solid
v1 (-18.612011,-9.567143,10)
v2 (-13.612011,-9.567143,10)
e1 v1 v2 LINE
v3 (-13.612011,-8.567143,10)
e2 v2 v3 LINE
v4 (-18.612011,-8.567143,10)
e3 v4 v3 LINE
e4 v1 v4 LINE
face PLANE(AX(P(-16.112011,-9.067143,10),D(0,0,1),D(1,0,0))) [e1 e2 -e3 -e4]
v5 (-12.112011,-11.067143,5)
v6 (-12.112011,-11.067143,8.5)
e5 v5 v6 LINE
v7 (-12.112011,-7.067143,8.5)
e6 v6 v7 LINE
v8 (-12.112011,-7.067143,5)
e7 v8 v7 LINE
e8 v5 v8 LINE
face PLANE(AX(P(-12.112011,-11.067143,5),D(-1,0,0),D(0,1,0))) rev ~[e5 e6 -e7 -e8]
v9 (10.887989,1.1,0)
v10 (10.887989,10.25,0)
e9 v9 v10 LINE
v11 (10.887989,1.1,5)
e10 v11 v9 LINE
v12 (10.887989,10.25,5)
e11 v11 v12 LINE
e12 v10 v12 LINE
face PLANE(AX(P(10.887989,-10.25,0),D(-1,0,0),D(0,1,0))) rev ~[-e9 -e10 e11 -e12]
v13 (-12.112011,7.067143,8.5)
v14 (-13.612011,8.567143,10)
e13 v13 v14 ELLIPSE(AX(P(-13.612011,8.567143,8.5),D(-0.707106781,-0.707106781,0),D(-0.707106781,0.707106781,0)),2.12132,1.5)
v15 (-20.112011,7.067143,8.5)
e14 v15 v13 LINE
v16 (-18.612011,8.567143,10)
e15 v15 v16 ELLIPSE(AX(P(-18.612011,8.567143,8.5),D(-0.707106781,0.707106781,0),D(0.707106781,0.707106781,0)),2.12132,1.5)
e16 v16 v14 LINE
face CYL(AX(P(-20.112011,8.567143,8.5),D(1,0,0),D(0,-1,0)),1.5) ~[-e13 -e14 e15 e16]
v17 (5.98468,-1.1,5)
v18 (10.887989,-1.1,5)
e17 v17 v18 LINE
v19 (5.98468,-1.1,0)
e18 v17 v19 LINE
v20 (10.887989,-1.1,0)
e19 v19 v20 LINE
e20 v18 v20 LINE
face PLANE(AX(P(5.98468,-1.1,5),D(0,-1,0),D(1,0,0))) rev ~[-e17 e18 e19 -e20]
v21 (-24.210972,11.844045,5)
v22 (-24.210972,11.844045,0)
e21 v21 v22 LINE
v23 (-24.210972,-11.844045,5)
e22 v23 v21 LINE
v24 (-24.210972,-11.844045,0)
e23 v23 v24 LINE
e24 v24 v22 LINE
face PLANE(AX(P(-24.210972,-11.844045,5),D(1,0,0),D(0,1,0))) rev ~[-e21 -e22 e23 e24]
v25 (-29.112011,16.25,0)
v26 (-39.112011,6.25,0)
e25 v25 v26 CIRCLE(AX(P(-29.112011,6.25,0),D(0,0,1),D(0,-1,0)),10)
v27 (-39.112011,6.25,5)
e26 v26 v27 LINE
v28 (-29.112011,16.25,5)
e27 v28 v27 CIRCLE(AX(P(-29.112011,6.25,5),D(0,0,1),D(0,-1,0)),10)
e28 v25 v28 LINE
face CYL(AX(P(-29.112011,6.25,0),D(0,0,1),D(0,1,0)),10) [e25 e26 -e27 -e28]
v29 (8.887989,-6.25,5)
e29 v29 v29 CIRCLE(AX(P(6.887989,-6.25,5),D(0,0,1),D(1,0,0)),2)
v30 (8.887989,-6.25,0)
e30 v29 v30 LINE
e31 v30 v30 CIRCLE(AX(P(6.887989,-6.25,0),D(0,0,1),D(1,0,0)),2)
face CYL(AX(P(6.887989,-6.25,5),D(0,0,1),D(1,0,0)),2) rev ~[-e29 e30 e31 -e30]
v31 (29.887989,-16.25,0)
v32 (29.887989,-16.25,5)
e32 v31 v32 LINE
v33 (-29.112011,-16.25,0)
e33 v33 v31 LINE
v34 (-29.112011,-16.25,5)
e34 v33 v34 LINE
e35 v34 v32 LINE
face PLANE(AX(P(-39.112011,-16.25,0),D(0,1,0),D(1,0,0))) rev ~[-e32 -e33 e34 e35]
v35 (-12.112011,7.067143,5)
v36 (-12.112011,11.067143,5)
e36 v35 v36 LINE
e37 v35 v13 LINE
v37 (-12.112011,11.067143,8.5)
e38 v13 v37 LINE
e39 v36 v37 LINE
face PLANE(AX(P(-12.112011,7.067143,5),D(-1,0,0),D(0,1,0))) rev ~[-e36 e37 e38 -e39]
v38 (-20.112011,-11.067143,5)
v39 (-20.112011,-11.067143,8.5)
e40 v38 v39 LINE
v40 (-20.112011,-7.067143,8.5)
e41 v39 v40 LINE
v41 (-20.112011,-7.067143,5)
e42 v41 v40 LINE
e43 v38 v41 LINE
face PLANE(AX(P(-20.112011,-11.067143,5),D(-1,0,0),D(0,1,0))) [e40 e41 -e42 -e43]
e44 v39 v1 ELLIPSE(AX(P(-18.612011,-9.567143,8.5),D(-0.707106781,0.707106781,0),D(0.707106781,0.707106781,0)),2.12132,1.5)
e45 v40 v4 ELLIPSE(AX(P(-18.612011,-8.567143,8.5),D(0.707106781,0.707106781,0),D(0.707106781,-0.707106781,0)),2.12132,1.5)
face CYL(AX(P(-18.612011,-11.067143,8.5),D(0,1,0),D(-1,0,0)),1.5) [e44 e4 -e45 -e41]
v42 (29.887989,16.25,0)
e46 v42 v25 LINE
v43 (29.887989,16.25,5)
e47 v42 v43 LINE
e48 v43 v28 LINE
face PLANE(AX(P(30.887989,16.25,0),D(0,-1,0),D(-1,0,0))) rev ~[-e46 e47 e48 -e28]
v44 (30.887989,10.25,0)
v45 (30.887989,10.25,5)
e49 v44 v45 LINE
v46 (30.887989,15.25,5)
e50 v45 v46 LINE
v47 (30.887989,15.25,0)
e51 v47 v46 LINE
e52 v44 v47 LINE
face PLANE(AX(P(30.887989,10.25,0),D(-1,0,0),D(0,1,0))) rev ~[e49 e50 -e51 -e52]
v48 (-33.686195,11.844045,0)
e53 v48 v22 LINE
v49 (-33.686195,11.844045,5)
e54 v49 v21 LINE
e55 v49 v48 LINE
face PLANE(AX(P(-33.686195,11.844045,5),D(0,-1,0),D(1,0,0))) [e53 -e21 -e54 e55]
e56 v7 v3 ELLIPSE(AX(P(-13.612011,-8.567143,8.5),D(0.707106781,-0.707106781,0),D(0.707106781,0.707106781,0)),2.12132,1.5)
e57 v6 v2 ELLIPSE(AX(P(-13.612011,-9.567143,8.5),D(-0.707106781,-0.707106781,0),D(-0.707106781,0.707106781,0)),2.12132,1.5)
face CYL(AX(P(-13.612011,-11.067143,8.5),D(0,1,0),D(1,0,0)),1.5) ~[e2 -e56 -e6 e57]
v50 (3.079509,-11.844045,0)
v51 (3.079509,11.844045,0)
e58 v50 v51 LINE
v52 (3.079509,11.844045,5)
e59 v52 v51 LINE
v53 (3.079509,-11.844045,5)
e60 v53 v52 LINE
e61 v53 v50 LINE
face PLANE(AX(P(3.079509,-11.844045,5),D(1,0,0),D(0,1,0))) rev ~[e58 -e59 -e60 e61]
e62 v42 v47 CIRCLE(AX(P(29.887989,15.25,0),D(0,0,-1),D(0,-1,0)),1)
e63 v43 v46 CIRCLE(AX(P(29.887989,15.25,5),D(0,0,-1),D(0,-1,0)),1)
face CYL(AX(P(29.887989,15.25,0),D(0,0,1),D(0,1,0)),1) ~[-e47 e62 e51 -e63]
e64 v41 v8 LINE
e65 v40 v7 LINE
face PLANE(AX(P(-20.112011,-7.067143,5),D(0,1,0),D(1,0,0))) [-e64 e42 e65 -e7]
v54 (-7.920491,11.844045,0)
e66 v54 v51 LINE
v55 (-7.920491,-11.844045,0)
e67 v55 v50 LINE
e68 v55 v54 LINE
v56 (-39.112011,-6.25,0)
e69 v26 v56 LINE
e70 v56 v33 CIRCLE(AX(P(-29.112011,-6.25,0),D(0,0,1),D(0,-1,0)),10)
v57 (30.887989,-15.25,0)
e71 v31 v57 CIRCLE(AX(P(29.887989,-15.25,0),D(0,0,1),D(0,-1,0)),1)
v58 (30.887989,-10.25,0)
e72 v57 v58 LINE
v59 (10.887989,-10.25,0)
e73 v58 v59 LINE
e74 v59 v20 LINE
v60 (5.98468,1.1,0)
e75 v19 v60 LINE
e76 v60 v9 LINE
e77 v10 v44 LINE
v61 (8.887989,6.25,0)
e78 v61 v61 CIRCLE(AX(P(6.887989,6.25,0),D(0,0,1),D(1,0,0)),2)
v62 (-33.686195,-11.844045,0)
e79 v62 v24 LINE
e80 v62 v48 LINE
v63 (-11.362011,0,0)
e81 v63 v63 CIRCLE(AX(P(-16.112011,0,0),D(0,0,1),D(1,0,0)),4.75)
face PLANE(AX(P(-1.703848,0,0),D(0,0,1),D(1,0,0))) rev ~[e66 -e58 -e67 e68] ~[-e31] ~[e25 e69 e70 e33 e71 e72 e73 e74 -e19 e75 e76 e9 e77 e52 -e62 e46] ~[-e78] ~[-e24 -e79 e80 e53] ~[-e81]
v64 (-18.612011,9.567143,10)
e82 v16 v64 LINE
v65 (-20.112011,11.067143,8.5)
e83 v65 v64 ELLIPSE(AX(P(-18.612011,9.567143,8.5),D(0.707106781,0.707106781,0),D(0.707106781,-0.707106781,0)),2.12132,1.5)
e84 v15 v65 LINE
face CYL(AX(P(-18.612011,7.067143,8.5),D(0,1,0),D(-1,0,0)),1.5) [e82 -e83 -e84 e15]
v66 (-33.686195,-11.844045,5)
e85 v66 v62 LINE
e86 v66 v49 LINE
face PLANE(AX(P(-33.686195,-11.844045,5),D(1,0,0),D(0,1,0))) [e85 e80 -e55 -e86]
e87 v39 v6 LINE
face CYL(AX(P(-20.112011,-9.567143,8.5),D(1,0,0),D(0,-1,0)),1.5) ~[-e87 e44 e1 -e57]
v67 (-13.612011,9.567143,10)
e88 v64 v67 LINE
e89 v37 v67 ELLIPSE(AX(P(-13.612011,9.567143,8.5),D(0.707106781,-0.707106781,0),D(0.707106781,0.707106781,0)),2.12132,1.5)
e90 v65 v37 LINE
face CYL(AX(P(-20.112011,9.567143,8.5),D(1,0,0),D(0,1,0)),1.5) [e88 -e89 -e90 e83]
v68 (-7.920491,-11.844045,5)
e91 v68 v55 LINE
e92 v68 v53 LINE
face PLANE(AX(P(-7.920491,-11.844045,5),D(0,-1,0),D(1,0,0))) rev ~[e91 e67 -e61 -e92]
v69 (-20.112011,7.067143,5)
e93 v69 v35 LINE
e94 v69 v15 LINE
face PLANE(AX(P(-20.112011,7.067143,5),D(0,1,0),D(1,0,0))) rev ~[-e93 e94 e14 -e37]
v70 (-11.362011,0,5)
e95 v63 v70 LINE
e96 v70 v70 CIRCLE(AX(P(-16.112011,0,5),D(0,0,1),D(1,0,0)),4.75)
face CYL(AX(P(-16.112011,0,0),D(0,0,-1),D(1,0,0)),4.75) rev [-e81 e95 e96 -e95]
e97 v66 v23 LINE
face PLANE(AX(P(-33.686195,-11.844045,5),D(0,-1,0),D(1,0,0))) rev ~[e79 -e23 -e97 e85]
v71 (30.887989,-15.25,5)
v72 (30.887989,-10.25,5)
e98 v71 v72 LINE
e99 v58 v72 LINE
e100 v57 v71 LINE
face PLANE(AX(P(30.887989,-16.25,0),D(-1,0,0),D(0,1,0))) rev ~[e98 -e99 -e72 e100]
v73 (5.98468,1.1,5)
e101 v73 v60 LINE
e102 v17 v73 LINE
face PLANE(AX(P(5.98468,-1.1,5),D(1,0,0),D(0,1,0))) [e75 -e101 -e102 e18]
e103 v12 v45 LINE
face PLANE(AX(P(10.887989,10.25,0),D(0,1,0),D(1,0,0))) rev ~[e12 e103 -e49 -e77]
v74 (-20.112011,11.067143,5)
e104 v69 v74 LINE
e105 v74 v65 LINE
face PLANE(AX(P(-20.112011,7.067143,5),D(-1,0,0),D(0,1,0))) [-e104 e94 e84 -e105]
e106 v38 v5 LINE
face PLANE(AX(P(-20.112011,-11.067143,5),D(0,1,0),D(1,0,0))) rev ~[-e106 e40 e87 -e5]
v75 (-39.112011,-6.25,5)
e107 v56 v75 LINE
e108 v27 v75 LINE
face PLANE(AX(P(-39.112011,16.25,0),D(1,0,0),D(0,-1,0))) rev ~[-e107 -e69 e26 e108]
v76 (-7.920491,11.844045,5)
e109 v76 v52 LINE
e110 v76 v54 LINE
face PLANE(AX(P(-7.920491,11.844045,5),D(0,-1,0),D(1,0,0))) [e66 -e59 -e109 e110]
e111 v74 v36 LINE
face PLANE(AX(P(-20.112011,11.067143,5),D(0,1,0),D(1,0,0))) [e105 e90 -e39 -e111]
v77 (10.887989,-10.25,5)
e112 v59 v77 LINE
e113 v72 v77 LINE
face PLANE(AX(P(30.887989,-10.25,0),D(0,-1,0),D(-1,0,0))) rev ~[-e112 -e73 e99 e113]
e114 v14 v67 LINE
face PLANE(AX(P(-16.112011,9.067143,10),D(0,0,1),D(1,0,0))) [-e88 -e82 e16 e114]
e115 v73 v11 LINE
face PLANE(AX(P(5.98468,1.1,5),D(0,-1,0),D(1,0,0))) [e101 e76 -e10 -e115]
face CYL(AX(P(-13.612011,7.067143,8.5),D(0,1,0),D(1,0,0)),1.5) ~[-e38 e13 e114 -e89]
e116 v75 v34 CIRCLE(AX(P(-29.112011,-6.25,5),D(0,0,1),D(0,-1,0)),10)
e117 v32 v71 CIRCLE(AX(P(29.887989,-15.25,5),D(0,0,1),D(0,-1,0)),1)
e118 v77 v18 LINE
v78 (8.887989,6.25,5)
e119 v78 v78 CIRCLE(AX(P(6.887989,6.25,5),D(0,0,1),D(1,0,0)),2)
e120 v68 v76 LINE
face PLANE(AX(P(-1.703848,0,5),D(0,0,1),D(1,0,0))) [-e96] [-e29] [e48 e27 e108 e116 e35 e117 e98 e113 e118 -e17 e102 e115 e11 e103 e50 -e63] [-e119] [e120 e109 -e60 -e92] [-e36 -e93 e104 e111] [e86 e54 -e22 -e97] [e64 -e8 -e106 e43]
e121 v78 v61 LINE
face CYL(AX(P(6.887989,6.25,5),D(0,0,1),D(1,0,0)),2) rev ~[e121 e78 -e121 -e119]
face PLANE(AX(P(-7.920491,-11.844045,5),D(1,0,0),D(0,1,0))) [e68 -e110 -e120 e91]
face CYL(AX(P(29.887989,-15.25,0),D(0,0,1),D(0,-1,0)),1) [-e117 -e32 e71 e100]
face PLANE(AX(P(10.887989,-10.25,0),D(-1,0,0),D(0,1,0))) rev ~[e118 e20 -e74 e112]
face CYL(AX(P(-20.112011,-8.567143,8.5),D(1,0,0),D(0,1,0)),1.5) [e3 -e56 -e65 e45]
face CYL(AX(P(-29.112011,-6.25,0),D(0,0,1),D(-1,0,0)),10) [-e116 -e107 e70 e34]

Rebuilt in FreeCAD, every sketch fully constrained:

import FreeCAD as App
import Part
import Sketcher

V = App.Vector


def edges_at(feature, points):
    """Names of the edges that pass closest to the given points."""
    edges = feature.Shape.Edges
    near = lambda p: min(range(len(edges)), key=lambda i: edges[i].distToShape(Part.Vertex(*p))[0])
    return sorted({f"Edge{near(p) + 1}" for p in points})


def add_polygon(sketch, points):
    """Adds a closed chain of lines whose ends are joined by coincident constraints."""
    first, n = sketch.GeometryCount, len(points)
    for a, b in zip(points, points[1:] + points[:1]):
        sketch.addGeometry(Part.LineSegment(App.Vector(*a, 0), App.Vector(*b, 0)), False)
    for i in range(n):
        sketch.addConstraint(Sketcher.Constraint("Coincident", first + i, 2, first + (i + 1) % n, 1))

doc = App.newDocument("Part")
body = doc.addObject("PartDesign::Body", "Body")

# Sketch on XY plane
sketch1 = doc.addObject("Sketcher::SketchObject", "Sketch")
body.addObject(sketch1)
sketch1.AttachmentSupport = (doc.XY_Plane, [""])
sketch1.MapMode = "FlatFace"
add_polygon(sketch1, [(30.9, 10.2), (30.9, 16.2), (-39.1, 16.2), (-39.1, -16.2), (30.9, -16.2), (30.9, -10.2), (10.9, -10.2), (10.9, 10.2)])  # lines 0-7
sketch1.addGeometry(Part.Circle(V(-16.1, 0, 0), V(0, 0, 1), 4.8), False)  # 8
sketch1.addConstraint([
    Sketcher.Constraint("Vertical", 0),
    Sketcher.Constraint("Horizontal", 1),
    Sketcher.Constraint("Vertical", 2),
    Sketcher.Constraint("Horizontal", 3),
    Sketcher.Constraint("Vertical", 4),
    Sketcher.Constraint("Horizontal", 5),
    Sketcher.Constraint("Vertical", 6),
    Sketcher.Constraint("Horizontal", 7),
    Sketcher.Constraint("Symmetric", 0, 2, 3, 2, -1),
    Sketcher.Constraint("PointOnObject", 8, 3, -1),
    Sketcher.Constraint("Equal", 0, 4),
    Sketcher.Constraint("Diameter", 8, 9.5),
    Sketcher.Constraint("DistanceX", 1, 2, 1, 1, 70.0),
    Sketcher.Constraint("DistanceX", 5, 2, 5, 1, 20.0),
    Sketcher.Constraint("DistanceY", 0, 1, 0, 2, 6.0),
    Sketcher.Constraint("DistanceY", 2, 2, 2, 1, 32.5),
    Sketcher.Constraint("DistanceX", 8, 3, 0, 2, 47.0),
    Sketcher.Constraint("DistanceX", 8, 3, -1, 1, 16.112011),
])
pad1 = doc.addObject("PartDesign::Pad", "Pad")
body.addObject(pad1)
pad1.Profile = sketch1
pad1.Length = 5
doc.recompute()

fillet = doc.addObject("PartDesign::Fillet", "Fillet")
body.addObject(fillet)
fillet.Base = (pad1, edges_at(pad1, [(-39.112, -16.25, 2.5), (-39.112, 16.25, 2.5)]))
fillet.Radius = 10
doc.recompute()

fillet2 = doc.addObject("PartDesign::Fillet", "Fillet001")
body.addObject(fillet2)
fillet2.Base = (fillet, edges_at(fillet, [(30.888, -16.25, 2.5), (30.888, 16.25, 2.5)]))
fillet2.Radius = 1

# Sketch on XY plane
sketch2 = doc.addObject("Sketcher::SketchObject", "Sketch001")
body.addObject(sketch2)
sketch2.AttachmentSupport = (doc.XY_Plane, [""])
sketch2.MapMode = "FlatFace"
sketch2.AttachmentOffset = App.Placement(V(0, 0, 5), App.Rotation())
sketch2.addGeometry(Part.Circle(V(6.9, 6.2, 0), V(0, 0, 1), 2), False)  # 0
sketch2.addGeometry(Part.Circle(V(6.9, -6.2, 0), V(0, 0, 1), 2), False)  # 1
add_polygon(sketch2, [(-33.7, 11.8), (-33.7, -11.8), (-24.2, -11.8), (-24.2, 11.8)])  # lines 2-5
add_polygon(sketch2, [(-7.9, 11.8), (-7.9, -11.8), (3.1, -11.8), (3.1, 11.8)])  # lines 6-9
add_polygon(sketch2, [(6, 1.1), (6, -1.1), (10.9, -1.1), (10.9, 1.1)])  # lines 10-13
sketch2.addConstraint([
    Sketcher.Constraint("Vertical", 2),
    Sketcher.Constraint("Horizontal", 3),
    Sketcher.Constraint("Vertical", 4),
    Sketcher.Constraint("Horizontal", 5),
    Sketcher.Constraint("Vertical", 6),
    Sketcher.Constraint("Horizontal", 7),
    Sketcher.Constraint("Vertical", 8),
    Sketcher.Constraint("Horizontal", 9),
    Sketcher.Constraint("Vertical", 10),
    Sketcher.Constraint("Horizontal", 11),
    Sketcher.Constraint("Vertical", 12),
    Sketcher.Constraint("Horizontal", 13),
    Sketcher.Constraint("Equal", 0, 1),
    Sketcher.Constraint("Symmetric", 0, 3, 1, 3, -1),
    Sketcher.Constraint("Horizontal", 3, 2, 6, 2),
    Sketcher.Constraint("Horizontal", 5, 2, 8, 2),
    Sketcher.Constraint("Diameter", 0, 4.0),
    Sketcher.Constraint("DistanceX", 7, 1, 7, 2, 11.0),
    Sketcher.Constraint("DistanceY", 10, 2, 10, 1, 2.2),
    Sketcher.Constraint("DistanceX", 1, 3, 11, 2, 4.0),
    Sketcher.Constraint("DistanceY", 10, 2, -1, 1, 1.1),
    Sketcher.Constraint("DistanceY", 1, 3, 0, 3, 12.5),
    Sketcher.Constraint("DistanceX", 11, 1, 11, 2, 4.903309),
    Sketcher.Constraint("DistanceY", 2, 2, 2, 1, 23.68809),
    Sketcher.Constraint("DistanceX", 3, 1, 3, 2, 9.475223),
    Sketcher.Constraint("DistanceX", -1, 1, 0, 3, 6.887989),
    Sketcher.Constraint("DistanceX", 6, 2, -1, 1, 7.920491),
    Sketcher.Constraint("DistanceX", 3, 2, 1, 3, 31.098961),
    Sketcher.Constraint("DistanceY", 2, 2, -1, 1, 11.844045),
])
pocket1 = doc.addObject("PartDesign::Pocket", "Pocket")
body.addObject(pocket1)
pocket1.Profile = sketch2
pocket1.Length = 5

# Sketch on XY plane
sketch3 = doc.addObject("Sketcher::SketchObject", "Sketch002")
body.addObject(sketch3)
sketch3.AttachmentSupport = (doc.XY_Plane, [""])
sketch3.MapMode = "FlatFace"
sketch3.AttachmentOffset = App.Placement(V(0, 0, 5), App.Rotation())
add_polygon(sketch3, [(-20.1, 11.1), (-20.1, 7.1), (-12.1, 7.1), (-12.1, 11.1)])  # lines 0-3
add_polygon(sketch3, [(-20.1, -7.1), (-20.1, -11.1), (-12.1, -11.1), (-12.1, -7.1)])  # lines 4-7
sketch3.addConstraint([
    Sketcher.Constraint("Vertical", 0),
    Sketcher.Constraint("Horizontal", 1),
    Sketcher.Constraint("Vertical", 2),
    Sketcher.Constraint("Horizontal", 3),
    Sketcher.Constraint("Vertical", 4),
    Sketcher.Constraint("Horizontal", 5),
    Sketcher.Constraint("Vertical", 6),
    Sketcher.Constraint("Horizontal", 7),
    Sketcher.Constraint("Symmetric", 3, 2, 4, 2, -1),
    Sketcher.Constraint("Symmetric", 1, 2, 6, 2, -1),
    Sketcher.Constraint("DistanceX", 1, 1, 1, 2, 8.0),
    Sketcher.Constraint("DistanceY", 0, 2, 0, 1, 4.0),
    Sketcher.Constraint("DistanceX", 0, 2, -1, 1, 20.112011),
    Sketcher.Constraint("DistanceY", -1, 1, 0, 2, 7.067143),
])
pad2 = doc.addObject("PartDesign::Pad", "Pad001")
body.addObject(pad2)
pad2.Profile = sketch3
pad2.Length = 5
doc.recompute()

fillet3 = doc.addObject("PartDesign::Fillet", "Fillet002")
body.addObject(fillet3)
fillet3.Base = (pad2, edges_at(pad2, [
    (-16.112, 11.067, 10),
    (-12.112, 9.067, 10),
    (-16.112, 7.067, 10),
    (-20.112, 9.067, 10),
    (-16.112, -7.067, 10),
    (-12.112, -9.067, 10),
    (-16.112, -11.067, 10),
    (-20.112, -9.067, 10),
]))
fillet3.Radius = 1.5

doc.recompute()
